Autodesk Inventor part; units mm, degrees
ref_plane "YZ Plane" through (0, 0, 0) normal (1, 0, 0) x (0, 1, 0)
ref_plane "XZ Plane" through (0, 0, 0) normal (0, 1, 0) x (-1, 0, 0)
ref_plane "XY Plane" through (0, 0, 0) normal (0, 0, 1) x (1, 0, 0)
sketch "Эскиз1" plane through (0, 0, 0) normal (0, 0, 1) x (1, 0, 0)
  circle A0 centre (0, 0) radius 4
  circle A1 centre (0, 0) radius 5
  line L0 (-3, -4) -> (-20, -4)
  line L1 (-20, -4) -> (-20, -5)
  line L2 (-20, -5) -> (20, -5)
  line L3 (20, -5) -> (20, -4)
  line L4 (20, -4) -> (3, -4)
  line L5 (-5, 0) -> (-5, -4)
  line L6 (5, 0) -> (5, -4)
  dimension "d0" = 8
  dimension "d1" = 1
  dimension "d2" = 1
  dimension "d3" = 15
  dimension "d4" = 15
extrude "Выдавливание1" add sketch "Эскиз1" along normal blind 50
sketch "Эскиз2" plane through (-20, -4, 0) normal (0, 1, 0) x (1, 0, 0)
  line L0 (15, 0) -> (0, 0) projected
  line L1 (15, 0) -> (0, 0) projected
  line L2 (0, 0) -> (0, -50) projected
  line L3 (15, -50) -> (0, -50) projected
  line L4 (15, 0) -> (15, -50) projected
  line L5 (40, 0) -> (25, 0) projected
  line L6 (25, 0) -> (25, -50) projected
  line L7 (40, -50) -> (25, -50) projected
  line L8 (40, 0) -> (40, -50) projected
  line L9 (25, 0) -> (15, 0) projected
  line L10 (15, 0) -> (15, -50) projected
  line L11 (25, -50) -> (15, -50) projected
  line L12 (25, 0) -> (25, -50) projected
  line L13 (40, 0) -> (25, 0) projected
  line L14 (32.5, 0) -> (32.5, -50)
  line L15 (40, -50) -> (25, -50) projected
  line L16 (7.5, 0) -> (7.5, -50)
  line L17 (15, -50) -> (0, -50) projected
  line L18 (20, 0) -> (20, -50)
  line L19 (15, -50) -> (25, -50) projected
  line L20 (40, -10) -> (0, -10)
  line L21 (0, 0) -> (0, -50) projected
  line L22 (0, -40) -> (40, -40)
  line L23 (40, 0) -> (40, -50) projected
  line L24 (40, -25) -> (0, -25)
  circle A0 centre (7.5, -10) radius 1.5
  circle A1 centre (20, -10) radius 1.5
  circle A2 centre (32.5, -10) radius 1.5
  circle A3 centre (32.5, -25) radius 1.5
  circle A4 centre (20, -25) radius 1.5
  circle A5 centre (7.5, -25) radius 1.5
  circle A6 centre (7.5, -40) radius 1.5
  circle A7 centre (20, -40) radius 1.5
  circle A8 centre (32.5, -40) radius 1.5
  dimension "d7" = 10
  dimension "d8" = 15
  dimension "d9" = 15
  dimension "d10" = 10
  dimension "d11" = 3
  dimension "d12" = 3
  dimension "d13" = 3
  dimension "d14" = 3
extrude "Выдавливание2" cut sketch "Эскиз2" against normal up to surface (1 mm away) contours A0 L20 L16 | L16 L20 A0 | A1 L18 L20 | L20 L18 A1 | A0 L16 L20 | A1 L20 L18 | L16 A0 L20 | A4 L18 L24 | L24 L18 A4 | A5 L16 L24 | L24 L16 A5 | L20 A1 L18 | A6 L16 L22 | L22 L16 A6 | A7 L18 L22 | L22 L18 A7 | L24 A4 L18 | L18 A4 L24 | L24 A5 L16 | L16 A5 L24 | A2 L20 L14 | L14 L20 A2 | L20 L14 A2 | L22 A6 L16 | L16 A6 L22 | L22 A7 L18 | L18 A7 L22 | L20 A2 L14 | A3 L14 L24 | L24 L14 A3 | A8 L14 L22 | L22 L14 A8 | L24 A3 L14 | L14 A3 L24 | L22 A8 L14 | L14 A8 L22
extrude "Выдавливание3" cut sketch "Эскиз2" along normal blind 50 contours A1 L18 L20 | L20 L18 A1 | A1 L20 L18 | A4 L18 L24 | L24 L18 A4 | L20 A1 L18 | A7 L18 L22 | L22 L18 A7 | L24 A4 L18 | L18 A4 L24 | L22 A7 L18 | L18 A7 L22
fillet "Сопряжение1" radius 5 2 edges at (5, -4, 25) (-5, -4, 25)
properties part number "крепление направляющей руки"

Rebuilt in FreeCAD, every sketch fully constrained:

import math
import FreeCAD as App
import Part
import Sketcher

V = App.Vector


def edges_at(feature, points):
    """Names of the edges that pass closest to the given points."""
    edges = feature.Shape.Edges
    near = lambda p: min(range(len(edges)), key=lambda i: edges[i].distToShape(Part.Vertex(*p))[0])
    return sorted({f"Edge{near(p) + 1}" for p in points})

doc = App.newDocument("Part")
body = doc.addObject("PartDesign::Body", "Body")

# Sketch on XY plane
sketch1 = doc.addObject("Sketcher::SketchObject", "Sketch")
body.addObject(sketch1)
sketch1.AttachmentSupport = (doc.XY_Plane, [""])
sketch1.MapMode = "FlatFace"
sketch1.addGeometry([
    Part.ArcOfCircle(Part.Circle(V(0, 0, 0), V(0, 0, 1), 5), math.radians(0), math.radians(180)),  # 0
    Part.LineSegment(V(-5, 0, 0), V(-5, -4, 0)),  # 1
    Part.LineSegment(V(-5, -4, 0), V(-20, -4, 0)),  # 2
    Part.LineSegment(V(-20, -4, 0), V(-20, -5, 0)),  # 3
    Part.LineSegment(V(-20, -5, 0), V(20, -5, 0)),  # 4
    Part.LineSegment(V(20, -5, 0), V(20, -4, 0)),  # 5
    Part.LineSegment(V(20, -4, 0), V(5, -4, 0)),  # 6
    Part.LineSegment(V(5, -4, 0), V(5, 0, 0)),  # 7
    Part.Circle(V(0, 0, 0), V(0, 0, 1), 4),  # 8
], False)
sketch1.addConstraint([
    Sketcher.Constraint("Tangent", 0, 2, 1, 1),
    Sketcher.Constraint("Coincident", 1, 2, 2, 1),
    Sketcher.Constraint("Coincident", 2, 2, 3, 1),
    Sketcher.Constraint("Coincident", 3, 2, 4, 1),
    Sketcher.Constraint("Coincident", 4, 2, 5, 1),
    Sketcher.Constraint("Coincident", 5, 2, 6, 1),
    Sketcher.Constraint("Coincident", 6, 2, 7, 1),
    Sketcher.Constraint("Tangent", 7, 2, 0, 1),
    Sketcher.Constraint("Vertical", 1),
    Sketcher.Constraint("Horizontal", 2),
    Sketcher.Constraint("Vertical", 3),
    Sketcher.Constraint("Horizontal", 4),
    Sketcher.Constraint("Vertical", 5),
    Sketcher.Constraint("Horizontal", 6),
    Sketcher.Constraint("Vertical", 7),
    Sketcher.Constraint("Coincident", 0, 3, -1, 1),
    Sketcher.Constraint("Coincident", 8, 3, -1, 1),
    Sketcher.Constraint("Symmetric", 2, 2, 5, 2, -2),
    Sketcher.Constraint("Diameter", 8, 8.0),
    Sketcher.Constraint("DistanceX", 2, 2, 2, 1, 15.0),
    Sketcher.Constraint("DistanceY", 3, 2, 3, 1, 1.0),
    Sketcher.Constraint("Radius", 0, 5.0),
    Sketcher.Constraint("DistanceY", 1, 2, 1, 1, 4.0),
])
pad1 = doc.addObject("PartDesign::Pad", "Pad")
body.addObject(pad1)
pad1.Profile = sketch1
pad1.Length = 50

# Sketch on XZ plane
sketch2 = doc.addObject("Sketcher::SketchObject", "Sketch001")
body.addObject(sketch2)
sketch2.AttachmentSupport = (doc.XZ_Plane, [""])
sketch2.MapMode = "FlatFace"
sketch2.AttachmentOffset = App.Placement(V(0, 0, 4), App.Rotation())
sketch2.addGeometry([
    Part.Circle(V(-12.5, 10, 0), V(0, 0, 1), 1.5),  # 0
    Part.Circle(V(0, 10, 0), V(0, 0, 1), 1.5),  # 1
    Part.Circle(V(0, 25, 0), V(0, 0, 1), 1.5),  # 2
    Part.Circle(V(-12.5, 25, 0), V(0, 0, 1), 1.5),  # 3
    Part.Circle(V(-12.5, 40, 0), V(0, 0, 1), 1.5),  # 4
    Part.Circle(V(0, 40, 0), V(0, 0, 1), 1.5),  # 5
    Part.Circle(V(12.5, 10, 0), V(0, 0, 1), 1.5),  # 6
    Part.Circle(V(12.5, 25, 0), V(0, 0, 1), 1.5),  # 7
    Part.Circle(V(12.5, 40, 0), V(0, 0, 1), 1.5),  # 8
], False)
sketch2.addConstraint([
    Sketcher.Constraint("Equal", 0, 1),
    Sketcher.Constraint("Equal", 1, 2),
    Sketcher.Constraint("Equal", 2, 3),
    Sketcher.Constraint("Equal", 3, 4),
    Sketcher.Constraint("Equal", 4, 5),
    Sketcher.Constraint("Equal", 5, 6),
    Sketcher.Constraint("Equal", 6, 7),
    Sketcher.Constraint("Equal", 7, 8),
    Sketcher.Constraint("Symmetric", 0, 3, 6, 3, -2),
    Sketcher.Constraint("Symmetric", 3, 3, 7, 3, -2),
    Sketcher.Constraint("Symmetric", 4, 3, 8, 3, -2),
    Sketcher.Constraint("PointOnObject", 1, 3, -2),
    Sketcher.Constraint("PointOnObject", 2, 3, -2),
    Sketcher.Constraint("PointOnObject", 5, 3, -2),
    Sketcher.Constraint("Horizontal", 0, 3, 1, 3),
    Sketcher.Constraint("Horizontal", 2, 3, 3, 3),
    Sketcher.Constraint("Horizontal", 4, 3, 5, 3),
    Sketcher.Constraint("Vertical", 0, 3, 3, 3),
    Sketcher.Constraint("Vertical", 3, 3, 4, 3),
    Sketcher.Constraint("Diameter", 0, 3.0),
    Sketcher.Constraint("DistanceY", -1, 1, 0, 3, 10.0),
    Sketcher.Constraint("DistanceY", 1, 3, 2, 3, 15.0),
    Sketcher.Constraint("DistanceY", 3, 3, 4, 3, 15.0),
    Sketcher.Constraint("DistanceX", 0, 3, 6, 3, 25.0),
])
pocket1 = doc.addObject("PartDesign::Pocket", "Pocket")
body.addObject(pocket1)
pocket1.Profile = sketch2
pocket1.Length = 1
pocket1.Reversed = True

# Sketch on XZ plane
sketch3 = doc.addObject("Sketcher::SketchObject", "Sketch002")
body.addObject(sketch3)
sketch3.AttachmentSupport = (doc.XZ_Plane, [""])
sketch3.MapMode = "FlatFace"
sketch3.AttachmentOffset = App.Placement(V(0, 0, 4), App.Rotation())
sketch3.addGeometry([
    Part.Circle(V(0, 10, 0), V(0, 0, 1), 1.5),
    Part.Circle(V(0, 25, 0), V(0, 0, 1), 1.5),
    Part.Circle(V(0, 40, 0), V(0, 0, 1), 1.5),
], False)
sketch3.addConstraint([
    Sketcher.Constraint("Equal", 0, 1),
    Sketcher.Constraint("Equal", 1, 2),
    Sketcher.Constraint("PointOnObject", 0, 3, -2),
    Sketcher.Constraint("PointOnObject", 1, 3, -2),
    Sketcher.Constraint("PointOnObject", 2, 3, -2),
    Sketcher.Constraint("Diameter", 0, 3.0),
    Sketcher.Constraint("DistanceY", -1, 1, 0, 3, 10.0),
    Sketcher.Constraint("DistanceY", 0, 3, 1, 3, 15.0),
    Sketcher.Constraint("DistanceY", 1, 3, 2, 3, 15.0),
])
pocket2 = doc.addObject("PartDesign::Pocket", "Pocket001")
body.addObject(pocket2)
pocket2.Profile = sketch3
pocket2.Length = 50
doc.recompute()

fillet = doc.addObject("PartDesign::Fillet", "Fillet")
body.addObject(fillet)
fillet.Base = (pocket2, edges_at(pocket2, [(5, -4, 25), (-5, -4, 25)]))
fillet.Radius = 5

doc.recompute()
